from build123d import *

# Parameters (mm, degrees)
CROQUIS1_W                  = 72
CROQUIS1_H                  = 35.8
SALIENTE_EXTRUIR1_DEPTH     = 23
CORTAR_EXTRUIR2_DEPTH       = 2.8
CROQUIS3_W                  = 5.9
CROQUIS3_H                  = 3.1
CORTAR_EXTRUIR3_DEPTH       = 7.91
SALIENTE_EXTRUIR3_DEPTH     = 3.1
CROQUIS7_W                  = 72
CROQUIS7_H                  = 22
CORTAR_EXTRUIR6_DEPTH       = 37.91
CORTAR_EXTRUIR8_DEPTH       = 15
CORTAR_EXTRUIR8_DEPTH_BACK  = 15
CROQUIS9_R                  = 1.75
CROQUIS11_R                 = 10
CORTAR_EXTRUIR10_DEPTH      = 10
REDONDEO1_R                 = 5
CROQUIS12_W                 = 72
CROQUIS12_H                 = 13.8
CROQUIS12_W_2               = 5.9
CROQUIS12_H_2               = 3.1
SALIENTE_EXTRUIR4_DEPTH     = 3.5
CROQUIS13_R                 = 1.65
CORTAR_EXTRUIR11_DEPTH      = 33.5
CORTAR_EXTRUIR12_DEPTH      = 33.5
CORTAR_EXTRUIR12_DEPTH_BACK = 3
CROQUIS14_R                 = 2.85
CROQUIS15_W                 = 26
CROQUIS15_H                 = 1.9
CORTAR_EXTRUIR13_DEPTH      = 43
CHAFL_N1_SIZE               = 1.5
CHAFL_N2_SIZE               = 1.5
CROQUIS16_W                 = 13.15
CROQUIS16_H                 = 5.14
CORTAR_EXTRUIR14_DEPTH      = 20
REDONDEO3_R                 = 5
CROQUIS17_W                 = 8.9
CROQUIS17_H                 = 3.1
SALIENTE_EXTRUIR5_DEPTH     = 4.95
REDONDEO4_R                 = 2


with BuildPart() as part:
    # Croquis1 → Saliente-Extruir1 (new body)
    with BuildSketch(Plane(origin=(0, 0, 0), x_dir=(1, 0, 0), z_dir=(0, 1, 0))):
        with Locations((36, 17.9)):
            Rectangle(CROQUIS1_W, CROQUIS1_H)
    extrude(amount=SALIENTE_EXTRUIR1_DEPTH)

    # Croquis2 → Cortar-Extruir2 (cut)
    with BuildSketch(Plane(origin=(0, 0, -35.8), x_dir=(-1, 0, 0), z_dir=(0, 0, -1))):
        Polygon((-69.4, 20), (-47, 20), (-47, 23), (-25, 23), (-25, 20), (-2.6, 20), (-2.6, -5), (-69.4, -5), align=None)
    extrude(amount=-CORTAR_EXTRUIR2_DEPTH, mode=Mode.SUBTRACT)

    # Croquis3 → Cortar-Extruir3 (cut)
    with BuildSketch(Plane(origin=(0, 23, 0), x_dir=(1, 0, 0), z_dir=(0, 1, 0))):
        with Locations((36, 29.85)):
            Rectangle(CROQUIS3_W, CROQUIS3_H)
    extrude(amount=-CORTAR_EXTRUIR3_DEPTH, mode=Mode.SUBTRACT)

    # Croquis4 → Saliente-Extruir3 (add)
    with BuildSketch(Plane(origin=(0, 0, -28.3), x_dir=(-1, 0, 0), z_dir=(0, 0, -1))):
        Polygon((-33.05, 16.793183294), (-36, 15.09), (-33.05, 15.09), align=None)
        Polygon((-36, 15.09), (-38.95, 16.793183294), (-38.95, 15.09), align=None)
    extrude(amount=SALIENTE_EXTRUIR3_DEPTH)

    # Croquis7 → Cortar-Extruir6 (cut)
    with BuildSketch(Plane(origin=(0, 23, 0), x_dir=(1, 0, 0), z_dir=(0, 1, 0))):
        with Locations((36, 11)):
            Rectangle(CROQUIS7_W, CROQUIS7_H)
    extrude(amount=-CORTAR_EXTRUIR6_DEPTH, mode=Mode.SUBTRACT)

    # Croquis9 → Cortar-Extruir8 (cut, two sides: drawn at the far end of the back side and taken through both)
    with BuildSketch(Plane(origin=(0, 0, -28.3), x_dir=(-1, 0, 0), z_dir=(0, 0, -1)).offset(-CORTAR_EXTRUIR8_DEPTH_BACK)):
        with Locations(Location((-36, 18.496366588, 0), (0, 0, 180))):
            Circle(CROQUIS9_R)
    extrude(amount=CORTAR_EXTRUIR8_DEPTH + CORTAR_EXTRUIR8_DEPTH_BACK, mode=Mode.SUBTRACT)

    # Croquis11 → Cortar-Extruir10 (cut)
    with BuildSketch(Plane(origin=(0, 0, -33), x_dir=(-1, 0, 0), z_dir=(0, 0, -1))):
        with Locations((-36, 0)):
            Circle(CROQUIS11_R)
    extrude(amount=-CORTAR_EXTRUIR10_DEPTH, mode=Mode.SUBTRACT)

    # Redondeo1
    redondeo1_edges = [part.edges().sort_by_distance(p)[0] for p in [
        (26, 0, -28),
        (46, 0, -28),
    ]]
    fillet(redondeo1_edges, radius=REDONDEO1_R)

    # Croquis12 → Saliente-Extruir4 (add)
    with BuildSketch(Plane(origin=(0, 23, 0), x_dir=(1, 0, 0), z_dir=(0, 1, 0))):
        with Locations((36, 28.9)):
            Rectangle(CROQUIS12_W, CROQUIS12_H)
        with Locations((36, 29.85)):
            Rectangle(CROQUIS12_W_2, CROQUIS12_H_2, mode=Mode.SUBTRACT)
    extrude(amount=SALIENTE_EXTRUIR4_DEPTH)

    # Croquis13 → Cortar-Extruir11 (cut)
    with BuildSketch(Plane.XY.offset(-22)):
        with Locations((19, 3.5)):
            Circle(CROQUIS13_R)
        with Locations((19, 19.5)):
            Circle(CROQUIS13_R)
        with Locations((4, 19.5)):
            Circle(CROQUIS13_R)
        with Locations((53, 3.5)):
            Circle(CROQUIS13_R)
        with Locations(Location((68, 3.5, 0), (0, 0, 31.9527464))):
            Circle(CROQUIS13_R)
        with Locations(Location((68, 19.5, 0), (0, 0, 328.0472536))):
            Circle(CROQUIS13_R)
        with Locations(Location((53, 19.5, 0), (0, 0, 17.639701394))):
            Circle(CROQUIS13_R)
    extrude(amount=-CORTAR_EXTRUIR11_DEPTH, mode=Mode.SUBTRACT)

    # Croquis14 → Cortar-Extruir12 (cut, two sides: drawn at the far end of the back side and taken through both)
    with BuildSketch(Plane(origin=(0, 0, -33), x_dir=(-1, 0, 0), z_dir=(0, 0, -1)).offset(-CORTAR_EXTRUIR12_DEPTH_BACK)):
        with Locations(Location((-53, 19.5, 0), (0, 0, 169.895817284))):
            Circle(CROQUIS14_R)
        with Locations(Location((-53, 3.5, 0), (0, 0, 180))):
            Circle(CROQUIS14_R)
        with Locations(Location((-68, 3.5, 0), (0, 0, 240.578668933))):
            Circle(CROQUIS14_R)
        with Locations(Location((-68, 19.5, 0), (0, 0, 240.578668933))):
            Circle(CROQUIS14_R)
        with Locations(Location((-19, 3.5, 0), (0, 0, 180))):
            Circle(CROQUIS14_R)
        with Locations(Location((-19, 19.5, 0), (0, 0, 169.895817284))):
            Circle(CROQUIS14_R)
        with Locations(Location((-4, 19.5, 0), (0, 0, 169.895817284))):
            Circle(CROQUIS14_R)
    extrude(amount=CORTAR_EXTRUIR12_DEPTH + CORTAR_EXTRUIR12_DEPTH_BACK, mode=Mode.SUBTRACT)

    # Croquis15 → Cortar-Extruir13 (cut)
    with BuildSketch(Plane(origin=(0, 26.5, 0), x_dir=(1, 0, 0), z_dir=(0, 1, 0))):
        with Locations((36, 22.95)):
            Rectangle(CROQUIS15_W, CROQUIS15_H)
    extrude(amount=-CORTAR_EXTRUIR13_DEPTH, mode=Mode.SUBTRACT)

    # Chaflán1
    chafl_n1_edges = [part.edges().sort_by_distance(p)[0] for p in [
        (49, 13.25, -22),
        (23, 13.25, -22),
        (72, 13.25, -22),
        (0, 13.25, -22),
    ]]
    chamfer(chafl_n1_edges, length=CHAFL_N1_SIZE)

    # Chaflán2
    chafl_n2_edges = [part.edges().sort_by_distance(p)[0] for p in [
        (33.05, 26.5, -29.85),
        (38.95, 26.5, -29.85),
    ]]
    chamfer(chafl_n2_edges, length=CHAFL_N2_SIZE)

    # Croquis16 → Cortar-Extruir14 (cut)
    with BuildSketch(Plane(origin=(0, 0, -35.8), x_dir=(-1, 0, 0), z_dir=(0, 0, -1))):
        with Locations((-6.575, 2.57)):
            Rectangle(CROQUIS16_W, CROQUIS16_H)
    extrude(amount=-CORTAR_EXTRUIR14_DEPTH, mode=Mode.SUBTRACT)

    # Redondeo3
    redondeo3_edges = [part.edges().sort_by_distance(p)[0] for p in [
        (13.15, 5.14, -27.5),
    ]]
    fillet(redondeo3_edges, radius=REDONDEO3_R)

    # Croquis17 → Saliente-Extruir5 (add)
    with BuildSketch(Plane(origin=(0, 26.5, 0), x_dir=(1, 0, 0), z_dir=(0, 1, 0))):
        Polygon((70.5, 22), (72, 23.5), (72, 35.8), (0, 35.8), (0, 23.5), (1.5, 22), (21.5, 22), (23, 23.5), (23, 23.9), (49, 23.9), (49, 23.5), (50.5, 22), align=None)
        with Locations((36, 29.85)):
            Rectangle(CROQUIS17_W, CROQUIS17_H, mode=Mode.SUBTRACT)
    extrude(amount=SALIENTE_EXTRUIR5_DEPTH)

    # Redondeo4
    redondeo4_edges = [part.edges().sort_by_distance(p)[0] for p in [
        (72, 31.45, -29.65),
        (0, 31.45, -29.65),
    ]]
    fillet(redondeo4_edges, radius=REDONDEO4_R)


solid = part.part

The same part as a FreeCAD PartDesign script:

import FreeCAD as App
import Part
import Sketcher
Q = App.Units.Quantity


def edges_at(feature, points):
    """Names of the edges that pass closest to the given points."""
    edges = feature.Shape.Edges
    near = lambda p: min(range(len(edges)), key=lambda i: edges[i].distToShape(Part.Vertex(*p))[0])
    return sorted({f"Edge{near(p) + 1}" for p in points})


def add_polygon(sketch, points):
    """Adds a closed chain of lines whose ends are joined by coincident constraints."""
    first, n = sketch.GeometryCount, len(points)
    for a, b in zip(points, points[1:] + points[:1]):
        sketch.addGeometry(Part.LineSegment(App.Vector(*a, 0), App.Vector(*b, 0)), False)
    for i in range(n):
        sketch.addConstraint(Sketcher.Constraint("Coincident", first + i, 2, first + (i + 1) % n, 1))

doc = App.newDocument("Part")
body = doc.addObject("PartDesign::Body", "Body")

sketch1 = body.newObject("Sketcher::SketchObject", "Sketch")
sketch1.AttachmentSupport = (doc.getObject("XZ_Plane"), [""])
sketch1.MapMode = "FlatFace"
add_polygon(sketch1, [(0, -36), (0, 0), (72, 0), (72, -36)])
sketch1.addConstraint([
    Sketcher.Constraint("Vertical", 0),
    Sketcher.Constraint("Horizontal", 1),
    Sketcher.Constraint("Vertical", 2),
    Sketcher.Constraint("Horizontal", 3),
    Sketcher.Constraint("Coincident", 0, 2, -1, 1),
    Sketcher.Constraint("DistanceX", 1, 1, 1, 2, 72.0),
    Sketcher.Constraint("DistanceY", 0, 1, 0, 2, 35.8),
])
pad1 = body.newObject("PartDesign::Pad", "Pad")
pad1.Profile = sketch1
pad1.Length = 23
pad1.Reversed = True

sketch2 = body.newObject("Sketcher::SketchObject", "Sketch001")
sketch2.AttachmentSupport = (doc.getObject("XY_Plane"), [""])
sketch2.MapMode = "FlatFace"
sketch2.AttachmentOffset = App.Placement(App.Vector(0, 0, -35.8), App.Rotation())
add_polygon(sketch2, [(47, 20), (69.4, 20), (69.4, -5), (2.6, -5), (2.6, 20), (25, 20), (25, 23), (47, 23)])
sketch2.addConstraint([
    Sketcher.Constraint("Horizontal", 0),
    Sketcher.Constraint("Vertical", 1),
    Sketcher.Constraint("Horizontal", 2),
    Sketcher.Constraint("Vertical", 3),
    Sketcher.Constraint("Horizontal", 4),
    Sketcher.Constraint("Vertical", 5),
    Sketcher.Constraint("Horizontal", 6),
    Sketcher.Constraint("Vertical", 7),
    Sketcher.Constraint("Horizontal", 0, 2, 3, 2),
    Sketcher.Constraint("Equal", 0, 4),
    Sketcher.Constraint("DistanceX", 6, 1, 6, 2, 22.0),
    Sketcher.Constraint("DistanceY", 1, 2, 1, 1, 25.0),
    Sketcher.Constraint("DistanceY", 5, 1, 5, 2, 3.0),
    Sketcher.Constraint("DistanceX", 0, 1, 0, 2, 22.4),
    Sketcher.Constraint("DistanceY", -1, 1, 0, 2, 20.0),
    Sketcher.Constraint("DistanceX", -1, 1, 4, 2, 25.0),
])
pocket1 = body.newObject("PartDesign::Pocket", "Pocket")
pocket1.Profile = sketch2
pocket1.Length = 2.8
pocket1.Reversed = True

sketch3 = body.newObject("Sketcher::SketchObject", "Sketch002")
sketch3.AttachmentSupport = (doc.getObject("XZ_Plane"), [""])
sketch3.MapMode = "FlatFace"
sketch3.AttachmentOffset = App.Placement(App.Vector(0, 0, -23), App.Rotation())
add_polygon(sketch3, [(33, -31.4), (33, -28.3), (39, -28.3), (39, -31.4)])
sketch3.addConstraint([
    Sketcher.Constraint("Vertical", 0),
    Sketcher.Constraint("Horizontal", 1),
    Sketcher.Constraint("Vertical", 2),
    Sketcher.Constraint("Horizontal", 3),
    Sketcher.Constraint("DistanceX", 1, 1, 1, 2, 5.9),
    Sketcher.Constraint("DistanceY", 0, 1, 0, 2, 3.1),
    Sketcher.Constraint("DistanceY", 0, 2, -1, 1, 28.3),
    Sketcher.Constraint("DistanceX", -1, 1, 0, 2, 33.05),
])
pocket2 = body.newObject("PartDesign::Pocket", "Pocket001")
pocket2.Profile = sketch3
pocket2.Length = 7.91
pocket2.Reversed = True

sketch4 = body.newObject("Sketcher::SketchObject", "Sketch003")
sketch4.AttachmentSupport = (doc.getObject("XY_Plane"), [""])
sketch4.MapMode = "FlatFace"
sketch4.AttachmentOffset = App.Placement(App.Vector(0, 0, -28.3), App.Rotation())
add_polygon(sketch4, [(33, 16.8), (36, 15.1), (33, 15.1)])
add_polygon(sketch4, [(36, 15.1), (39, 16.8), (39, 15.1)])
sketch4.addConstraint([
    Sketcher.Constraint("Horizontal", 1),
    Sketcher.Constraint("Vertical", 2),
    Sketcher.Constraint("Vertical", 4),
    Sketcher.Constraint("Horizontal", 5),
    Sketcher.Constraint("Coincident", 5, 2, 0, 2),
    Sketcher.Constraint("Horizontal", 2, 2, 3, 2),
    Sketcher.Constraint("Equal", 1, 5),
    Sketcher.Constraint("Angle", 0, Q("-30 deg")),
    Sketcher.Constraint("DistanceX", -1, 1, 0, 2, 36.0),
    Sketcher.Constraint("DistanceX", 1, 2, 1, 1, 2.95),
    Sketcher.Constraint("DistanceY", -1, 1, 0, 2, 15.09),
])
pad2 = body.newObject("PartDesign::Pad", "Pad001")
pad2.Profile = sketch4
pad2.Length = 3.1
pad2.Reversed = True

sketch5 = body.newObject("Sketcher::SketchObject", "Sketch004")
sketch5.AttachmentSupport = (doc.getObject("XZ_Plane"), [""])
sketch5.MapMode = "FlatFace"
sketch5.AttachmentOffset = App.Placement(App.Vector(0, 0, -23), App.Rotation())
add_polygon(sketch5, [(0, -22), (0, 0), (72, 0), (72, -22)])
sketch5.addConstraint([
    Sketcher.Constraint("Vertical", 0),
    Sketcher.Constraint("Horizontal", 1),
    Sketcher.Constraint("Vertical", 2),
    Sketcher.Constraint("Horizontal", 3),
    Sketcher.Constraint("Coincident", 0, 2, -1, 1),
    Sketcher.Constraint("DistanceX", 1, 1, 1, 2, 72.0),
    Sketcher.Constraint("DistanceY", 0, 1, 0, 2, 22.0),
])
pocket3 = body.newObject("PartDesign::Pocket", "Pocket002")
pocket3.Profile = sketch5
pocket3.Length = 37.91
pocket3.Reversed = True

sketch6 = body.newObject("Sketcher::SketchObject", "Sketch005")
sketch6.AttachmentSupport = (doc.getObject("XY_Plane"), [""])
sketch6.MapMode = "FlatFace"
sketch6.AttachmentOffset = App.Placement(App.Vector(0, 0, -28.3), App.Rotation())
sketch6.addGeometry(Part.Circle(App.Vector(36, 18.5, 0), App.Vector(0, 0, 1), 1.8), False)
sketch6.addConstraint([
    Sketcher.Constraint("Diameter", 0, 3.5),
    Sketcher.Constraint("DistanceX", -1, 1, 0, 3, 36.0),
    Sketcher.Constraint("DistanceY", -1, 1, 0, 3, 18.496367),
])
pocket4 = body.newObject("PartDesign::Pocket", "Pocket003")
pocket4.Profile = sketch6
pocket4.Type = "ThroughAll"
pocket4.Midplane = True

sketch7 = body.newObject("Sketcher::SketchObject", "Sketch006")
sketch7.AttachmentSupport = (doc.getObject("XY_Plane"), [""])
sketch7.MapMode = "FlatFace"
sketch7.AttachmentOffset = App.Placement(App.Vector(0, 0, -33), App.Rotation())
sketch7.addGeometry(Part.Circle(App.Vector(36, 0, 0), App.Vector(0, 0, 1), 10), False)
sketch7.addConstraint([
    Sketcher.Constraint("PointOnObject", 0, 3, -1),
    Sketcher.Constraint("Diameter", 0, 20.0),
    Sketcher.Constraint("DistanceX", -1, 1, 0, 3, 36.0),
])
pocket5 = body.newObject("PartDesign::Pocket", "Pocket004")
pocket5.Profile = sketch7
pocket5.Length = 10
pocket5.Reversed = True
doc.recompute()

fillet = body.newObject("PartDesign::Fillet", "Fillet")
fillet.Base = (pocket5, edges_at(pocket5, [(26, 0, -28), (46, 0, -28)]))
fillet.Radius = 5

sketch8 = body.newObject("Sketcher::SketchObject", "Sketch007")
sketch8.AttachmentSupport = (doc.getObject("XZ_Plane"), [""])
sketch8.MapMode = "FlatFace"
sketch8.AttachmentOffset = App.Placement(App.Vector(0, 0, -23), App.Rotation())
add_polygon(sketch8, [(0, -35.8), (0, -22), (72, -22), (72, -35.8)])
add_polygon(sketch8, [(39, -28.3), (33, -28.3), (33, -31.4), (39, -31.4)])
sketch8.addConstraint([
    Sketcher.Constraint("Vertical", 0),
    Sketcher.Constraint("Horizontal", 1),
    Sketcher.Constraint("Vertical", 2),
    Sketcher.Constraint("Horizontal", 3),
    Sketcher.Constraint("Horizontal", 4),
    Sketcher.Constraint("Vertical", 5),
    Sketcher.Constraint("Horizontal", 6),
    Sketcher.Constraint("Vertical", 7),
    Sketcher.Constraint("PointOnObject", 0, 2, -2),
    Sketcher.Constraint("DistanceX", 1, 1, 1, 2, 72.0),
    Sketcher.Constraint("DistanceX", 4, 2, 4, 1, 5.9),
    Sketcher.Constraint("DistanceY", 0, 1, 0, 2, 13.8),
    Sketcher.Constraint("DistanceY", 5, 2, 5, 1, 3.1),
    Sketcher.Constraint("DistanceY", 0, 2, -1, 1, 22.0),
    Sketcher.Constraint("DistanceY", 4, 2, -1, 1, 28.3),
    Sketcher.Constraint("DistanceX", -1, 1, 4, 2, 33.05),
])
pad3 = body.newObject("PartDesign::Pad", "Pad002")
pad3.Profile = sketch8
pad3.Length = 3.5
pad3.Reversed = True

sketch9 = body.newObject("Sketcher::SketchObject", "Sketch008")
sketch9.AttachmentSupport = (doc.getObject("XY_Plane"), [""])
sketch9.MapMode = "FlatFace"
sketch9.AttachmentOffset = App.Placement(App.Vector(0, 0, -22), App.Rotation())
sketch9.addGeometry([
    Part.Circle(App.Vector(19, 3.5, 0), App.Vector(0, 0, 1), 1.6),
    Part.Circle(App.Vector(19, 19.5, 0), App.Vector(0, 0, 1), 1.6),
    Part.Circle(App.Vector(4, 19.5, 0), App.Vector(0, 0, 1), 1.6),
    Part.Circle(App.Vector(53, 3.5, 0), App.Vector(0, 0, 1), 1.6),
    Part.Circle(App.Vector(68, 3.5, 0), App.Vector(0, 0, 1), 1.6),
    Part.Circle(App.Vector(68, 19.5, 0), App.Vector(0, 0, 1), 1.6),
    Part.Circle(App.Vector(53, 19.5, 0), App.Vector(0, 0, 1), 1.6),
], False)
sketch9.addConstraint([
    Sketcher.Constraint("Equal", 0, 1),
    Sketcher.Constraint("Equal", 1, 2),
    Sketcher.Constraint("Equal", 2, 3),
    Sketcher.Constraint("Equal", 3, 4),
    Sketcher.Constraint("Equal", 4, 5),
    Sketcher.Constraint("Equal", 5, 6),
    Sketcher.Constraint("Horizontal", 1, 3, 2, 3),
    Sketcher.Constraint("Horizontal", 0, 3, 3, 3),
    Sketcher.Constraint("Horizontal", 3, 3, 4, 3),
    Sketcher.Constraint("Horizontal", 2, 3, 5, 3),
    Sketcher.Constraint("Horizontal", 5, 3, 6, 3),
    Sketcher.Constraint("Vertical", 0, 3, 1, 3),
    Sketcher.Constraint("Vertical", 4, 3, 5, 3),
    Sketcher.Constraint("Vertical", 3, 3, 6, 3),
    Sketcher.Constraint("Diameter", 0, 3.3),
    Sketcher.Constraint("DistanceX", -1, 1, 0, 3, 19.0),
    Sketcher.Constraint("DistanceX", -1, 1, 2, 3, 4.0),
    Sketcher.Constraint("DistanceX", -1, 1, 3, 3, 53.0),
    Sketcher.Constraint("DistanceX", -1, 1, 4, 3, 68.0),
    Sketcher.Constraint("DistanceY", 0, 3, 1, 3, 16.0),
    Sketcher.Constraint("DistanceY", -1, 1, 0, 3, 3.5),
])
pocket6 = body.newObject("PartDesign::Pocket", "Pocket005")
pocket6.Profile = sketch9
pocket6.Length = 33.5

sketch10 = body.newObject("Sketcher::SketchObject", "Sketch009")
sketch10.AttachmentSupport = (doc.getObject("XY_Plane"), [""])
sketch10.MapMode = "FlatFace"
sketch10.AttachmentOffset = App.Placement(App.Vector(0, 0, -33), App.Rotation())
sketch10.addGeometry([
    Part.Circle(App.Vector(53, 19.5, 0), App.Vector(0, 0, 1), 2.9),
    Part.Circle(App.Vector(53, 3.5, 0), App.Vector(0, 0, 1), 2.9),
    Part.Circle(App.Vector(68, 3.5, 0), App.Vector(0, 0, 1), 2.9),
    Part.Circle(App.Vector(68, 19.5, 0), App.Vector(0, 0, 1), 2.9),
    Part.Circle(App.Vector(19, 3.5, 0), App.Vector(0, 0, 1), 2.9),
    Part.Circle(App.Vector(19, 19.5, 0), App.Vector(0, 0, 1), 2.9),
    Part.Circle(App.Vector(4, 19.5, 0), App.Vector(0, 0, 1), 2.9),
], False)
sketch10.addConstraint([
    Sketcher.Constraint("Equal", 0, 1),
    Sketcher.Constraint("Equal", 1, 2),
    Sketcher.Constraint("Equal", 2, 3),
    Sketcher.Constraint("Equal", 3, 4),
    Sketcher.Constraint("Equal", 4, 5),
    Sketcher.Constraint("Equal", 5, 6),
    Sketcher.Constraint("Horizontal", 1, 3, 2, 3),
    Sketcher.Constraint("Horizontal", 0, 3, 3, 3),
    Sketcher.Constraint("Horizontal", 2, 3, 4, 3),
    Sketcher.Constraint("Horizontal", 3, 3, 5, 3),
    Sketcher.Constraint("Horizontal", 5, 3, 6, 3),
    Sketcher.Constraint("Vertical", 0, 3, 1, 3),
    Sketcher.Constraint("Vertical", 2, 3, 3, 3),
    Sketcher.Constraint("Vertical", 4, 3, 5, 3),
    Sketcher.Constraint("Diameter", 0, 5.7),
    Sketcher.Constraint("DistanceX", -1, 1, 0, 3, 53.0),
    Sketcher.Constraint("DistanceX", -1, 1, 2, 3, 68.0),
    Sketcher.Constraint("DistanceX", -1, 1, 4, 3, 19.0),
    Sketcher.Constraint("DistanceX", -1, 1, 6, 3, 4.0),
    Sketcher.Constraint("DistanceY", 1, 3, 0, 3, 16.0),
    Sketcher.Constraint("DistanceY", -1, 1, 0, 3, 19.5),
])
pocket7 = body.newObject("PartDesign::Pocket", "Pocket006")
pocket7.Profile = sketch10
pocket7.Type = "TwoLengths"
pocket7.Length = 33.5
pocket7.Length2 = 3

sketch11 = body.newObject("Sketcher::SketchObject", "Sketch010")
sketch11.AttachmentSupport = (doc.getObject("XZ_Plane"), [""])
sketch11.MapMode = "FlatFace"
sketch11.AttachmentOffset = App.Placement(App.Vector(0, 0, -26.5), App.Rotation())
add_polygon(sketch11, [(23, -23.9), (23, -22), (49, -22), (49, -23.9)])
sketch11.addConstraint([
    Sketcher.Constraint("Vertical", 0),
    Sketcher.Constraint("Horizontal", 1),
    Sketcher.Constraint("Vertical", 2),
    Sketcher.Constraint("Horizontal", 3),
    Sketcher.Constraint("DistanceX", 1, 1, 1, 2, 26.0),
    Sketcher.Constraint("DistanceY", 0, 1, 0, 2, 1.9),
    Sketcher.Constraint("DistanceX", -1, 1, 0, 2, 23.0),
    Sketcher.Constraint("DistanceY", 0, 2, -1, 1, 22.0),
])
pocket8 = body.newObject("PartDesign::Pocket", "Pocket007")
pocket8.Profile = sketch11
pocket8.Length = 43
pocket8.Reversed = True
doc.recompute()

chamfer = body.newObject("PartDesign::Chamfer", "Chamfer")
chamfer.Base = (pocket8, edges_at(pocket8, [
    (49, 13.25, -22),
    (23, 13.25, -22),
    (72, 13.25, -22),
    (0, 13.25, -22),
]))
chamfer.Size = 1.5
doc.recompute()

chamfer2 = body.newObject("PartDesign::Chamfer", "Chamfer001")
chamfer2.Base = (chamfer, edges_at(chamfer, [(33.05, 26.5, -29.85), (38.95, 26.5, -29.85)]))
chamfer2.Size = 1.5

sketch12 = body.newObject("Sketcher::SketchObject", "Sketch011")
sketch12.AttachmentSupport = (doc.getObject("XY_Plane"), [""])
sketch12.MapMode = "FlatFace"
sketch12.AttachmentOffset = App.Placement(App.Vector(0, 0, -35.8), App.Rotation())
add_polygon(sketch12, [(13, 5), (13, 0), (0, 0), (0, 5)])
sketch12.addConstraint([
    Sketcher.Constraint("Vertical", 0),
    Sketcher.Constraint("Horizontal", 1),
    Sketcher.Constraint("Vertical", 2),
    Sketcher.Constraint("Horizontal", 3),
    Sketcher.Constraint("Coincident", 1, 2, -1, 1),
    Sketcher.Constraint("DistanceX", 1, 2, 1, 1, 13.15),
    Sketcher.Constraint("DistanceY", 0, 2, 0, 1, 5.14),
])
pocket9 = body.newObject("PartDesign::Pocket", "Pocket008")
pocket9.Profile = sketch12
pocket9.Length = 20
pocket9.Reversed = True
doc.recompute()

fillet2 = body.newObject("PartDesign::Fillet", "Fillet001")
fillet2.Base = (pocket9, edges_at(pocket9, [(13.15, 5.14, -27.5)]))
fillet2.Radius = 5

sketch13 = body.newObject("Sketcher::SketchObject", "Sketch012")
sketch13.AttachmentSupport = (doc.getObject("XZ_Plane"), [""])
sketch13.MapMode = "FlatFace"
sketch13.AttachmentOffset = App.Placement(App.Vector(0, 0, -26.5), App.Rotation())
add_polygon(sketch13, [(70.5, -22), (72, -23.5), (72, -35.8), (0, -35.8), (0, -23.5), (1.5, -22), (21.5, -22), (23, -23.5), (23, -23.9), (49, -23.9), (49, -23.5), (50.5, -22)])
add_polygon(sketch13, [(40.45, -28.3), (31.55, -28.3), (31.55, -31.4), (40.45, -31.4)])
sketch13.addConstraint([
    Sketcher.Constraint("Vertical", 1),
    Sketcher.Constraint("Horizontal", 2),
    Sketcher.Constraint("Vertical", 3),
    Sketcher.Constraint("Horizontal", 5),
    Sketcher.Constraint("Vertical", 7),
    Sketcher.Constraint("Horizontal", 8),
    Sketcher.Constraint("Vertical", 9),
    Sketcher.Constraint("Horizontal", 11),
    Sketcher.Constraint("Horizontal", 12),
    Sketcher.Constraint("Vertical", 13),
    Sketcher.Constraint("Horizontal", 14),
    Sketcher.Constraint("Vertical", 15),
    Sketcher.Constraint("PointOnObject", 2, 2, -2),
    Sketcher.Constraint("Perpendicular", 0, 4),
    Sketcher.Constraint("Perpendicular", 4, 6),
    Sketcher.Constraint("Perpendicular", 6, 10),
    Sketcher.Constraint("Horizontal", 0, 2, 3, 2),
    Sketcher.Constraint("Horizontal", 3, 2, 6, 2),
    Sketcher.Constraint("Horizontal", 6, 2, 9, 2),
    Sketcher.Constraint("Horizontal", 5, 2, 10, 2),
    Sketcher.Constraint("Equal", 5, 11),
    Sketcher.Constraint("Equal", 0, 4),
    Sketcher.Constraint("DistanceX", 2, 2, 2, 1, 72.0),
    Sketcher.Constraint("DistanceX", 5, 1, 5, 2, 20.0),
    Sketcher.Constraint("DistanceX", 8, 1, 8, 2, 26.0),
    Sketcher.Constraint("DistanceX", 12, 2, 12, 1, 8.9),
    Sketcher.Constraint("DistanceY", 1, 2, 1, 1, 12.3),
    Sketcher.Constraint("DistanceY", 7, 2, 7, 1, 0.4),
    Sketcher.Constraint("DistanceY", 13, 2, 13, 1, 3.1),
    Sketcher.Constraint("DistanceY", 4, 2, -1, 1, 22.0),
    Sketcher.Constraint("DistanceY", 12, 2, -1, 1, 28.3),
    Sketcher.Constraint("DistanceX", -1, 1, 12, 2, 31.55),
])
pad4 = body.newObject("PartDesign::Pad", "Pad003")
pad4.Profile = sketch13
pad4.Length = 4.95
pad4.Reversed = True
doc.recompute()

fillet3 = body.newObject("PartDesign::Fillet", "Fillet002")
fillet3.Base = (pad4, edges_at(pad4, [(72, 31.45, -29.65), (0, 31.45, -29.65)]))
fillet3.Radius = 2

doc.recompute()
